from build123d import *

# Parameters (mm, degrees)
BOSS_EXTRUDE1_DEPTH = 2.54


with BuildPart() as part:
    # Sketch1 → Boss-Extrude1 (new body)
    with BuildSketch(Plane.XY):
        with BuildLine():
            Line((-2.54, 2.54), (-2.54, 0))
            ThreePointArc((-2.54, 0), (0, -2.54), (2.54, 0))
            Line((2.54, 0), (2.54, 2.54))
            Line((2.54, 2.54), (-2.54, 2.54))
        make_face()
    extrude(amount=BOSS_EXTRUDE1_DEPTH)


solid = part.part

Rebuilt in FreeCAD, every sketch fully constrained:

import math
import FreeCAD as App
import Part
import Sketcher
from FreeCAD import Vector
Q = App.Units.Quantity

doc = App.newDocument("Part")
body = doc.addObject("PartDesign::Body", "Body")

# Sketch on XY plane
sketch1 = doc.addObject("Sketcher::SketchObject", "Sketch")
body.addObject(sketch1)
sketch1.AttachmentSupport = (doc.XY_Plane, [""])
sketch1.MapMode = "FlatFace"
sketch1.addGeometry([
    Part.LineSegment(Vector(-2.54, 2.54, 0), Vector(-2.54, 0, 0)),
    Part.ArcOfCircle(Part.Circle(Vector(0, 0, 0), Vector(0, 0, 1), 2.54), math.radians(180), math.radians(360)),
    Part.LineSegment(Vector(2.54, 0, 0), Vector(2.54, 2.54, 0)),
    Part.LineSegment(Vector(2.54, 2.54, 0), Vector(-2.54, 2.54, 0)),
], False)
sketch1.addConstraint([
    Sketcher.Constraint("Tangent", 0, 2, 1, 1),
    Sketcher.Constraint("Tangent", 1, 2, 2, 1),
    Sketcher.Constraint("Coincident", 2, 2, 3, 1),
    Sketcher.Constraint("Coincident", 3, 2, 0, 1),
    Sketcher.Constraint("Vertical", 0),
    Sketcher.Constraint("Vertical", 2),
    Sketcher.Constraint("Horizontal", 3),
    Sketcher.Constraint("Coincident", 1, 3, -1, 1),
    Sketcher.Constraint("Radius", 1, Q("0.1 in")),
    Sketcher.Constraint("DistanceY", 0, 2, 0, 1, Q("0.1 in")),
])
pad1 = doc.addObject("PartDesign::Pad", "Pad")
body.addObject(pad1)
pad1.Profile = sketch1
pad1.Length = Q("0.1 in")

doc.recompute()
